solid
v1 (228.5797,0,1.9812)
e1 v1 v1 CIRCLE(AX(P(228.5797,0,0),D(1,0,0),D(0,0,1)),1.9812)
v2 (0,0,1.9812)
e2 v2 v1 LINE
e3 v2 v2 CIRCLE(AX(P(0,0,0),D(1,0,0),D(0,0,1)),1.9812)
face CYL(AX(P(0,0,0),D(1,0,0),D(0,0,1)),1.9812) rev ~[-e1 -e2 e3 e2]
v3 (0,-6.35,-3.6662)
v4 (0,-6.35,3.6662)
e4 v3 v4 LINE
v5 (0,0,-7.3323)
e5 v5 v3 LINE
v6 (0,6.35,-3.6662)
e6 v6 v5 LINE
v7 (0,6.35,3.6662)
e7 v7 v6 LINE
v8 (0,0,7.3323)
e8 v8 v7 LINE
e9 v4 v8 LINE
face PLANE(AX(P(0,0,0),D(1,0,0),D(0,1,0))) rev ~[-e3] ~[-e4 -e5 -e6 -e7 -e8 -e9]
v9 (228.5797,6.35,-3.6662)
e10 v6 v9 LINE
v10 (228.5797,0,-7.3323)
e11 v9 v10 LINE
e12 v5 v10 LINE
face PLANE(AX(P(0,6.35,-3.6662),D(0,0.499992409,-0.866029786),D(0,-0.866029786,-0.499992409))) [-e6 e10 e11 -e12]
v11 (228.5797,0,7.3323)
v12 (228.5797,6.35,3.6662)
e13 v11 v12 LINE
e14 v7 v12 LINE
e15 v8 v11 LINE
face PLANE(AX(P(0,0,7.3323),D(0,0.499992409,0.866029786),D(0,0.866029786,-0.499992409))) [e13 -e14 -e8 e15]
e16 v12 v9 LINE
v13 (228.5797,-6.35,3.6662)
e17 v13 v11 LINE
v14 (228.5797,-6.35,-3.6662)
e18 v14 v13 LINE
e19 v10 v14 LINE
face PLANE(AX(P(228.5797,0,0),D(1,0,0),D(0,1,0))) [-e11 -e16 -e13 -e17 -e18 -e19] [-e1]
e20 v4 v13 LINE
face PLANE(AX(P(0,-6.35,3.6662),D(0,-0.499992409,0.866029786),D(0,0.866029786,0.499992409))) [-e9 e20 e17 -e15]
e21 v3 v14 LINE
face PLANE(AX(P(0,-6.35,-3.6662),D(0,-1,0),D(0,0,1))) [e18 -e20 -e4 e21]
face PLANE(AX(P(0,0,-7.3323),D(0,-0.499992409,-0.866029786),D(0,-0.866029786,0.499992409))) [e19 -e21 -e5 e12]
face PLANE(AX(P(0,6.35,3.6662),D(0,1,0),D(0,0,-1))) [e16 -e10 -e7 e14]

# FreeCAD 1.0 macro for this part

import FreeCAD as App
import Part
import Sketcher
from FreeCAD import Vector
Q = App.Units.Quantity


def add_polygon(sketch, points):
    """Adds a closed chain of lines whose ends are joined by coincident constraints."""
    first, n = sketch.GeometryCount, len(points)
    for a, b in zip(points, points[1:] + points[:1]):
        sketch.addGeometry(Part.LineSegment(App.Vector(*a, 0), App.Vector(*b, 0)), False)
    for i in range(n):
        sketch.addConstraint(Sketcher.Constraint("Coincident", first + i, 2, first + (i + 1) % n, 1))

doc = App.newDocument("Part")
body = doc.addObject("PartDesign::Body", "Body")

# Sketch on YZ plane
sketch1 = body.newObject("Sketcher::SketchObject", "Sketch")
sketch1.AttachmentSupport = (doc.getObject("YZ_Plane"), [""])
sketch1.MapMode = "FlatFace"
add_polygon(sketch1, [(-6, 4), (-6, -4), (0, -7), (6, -4), (6, 4), (0, 7)])  # lines 0-5
sketch1.addConstraint(Sketcher.Constraint("Vertical", 0))
sketch1.addConstraint(Sketcher.Constraint("Vertical", 3))
sketch1.addConstraint(Sketcher.Constraint("Symmetric", 0, 2, 3, 2, -1, 1))
sketch1.addConstraint(Sketcher.Constraint("Symmetric", 1, 2, 4, 2, -1, 1))
sketch1.addConstraint(Sketcher.Constraint("PointOnObject", 1, 2, -2))
sketch1.addConstraint(Sketcher.Constraint("Parallel", 2, 5))
sketch1.addConstraint(Sketcher.Constraint("Horizontal", 0, 2, 2, 2))
sketch1.addConstraint(Sketcher.Constraint("DistanceX", 0, 2, 2, 2, Q("0.5 in")))
sketch1.addConstraint(Sketcher.Constraint("Angle", 1, Q("-29.9995 deg")))
sketch1.addConstraint(Sketcher.Constraint("DistanceY", 1, 2, 3, 2, Q("0.433 in")))
pad1 = body.newObject("PartDesign::Pad", "Pad")
pad1.Profile = sketch1
pad1.Length = Q("8.9992008 in")

# Sketch on YZ plane
sketch2 = body.newObject("Sketcher::SketchObject", "Sketch001")
sketch2.AttachmentSupport = (doc.getObject("YZ_Plane"), [""])
sketch2.MapMode = "FlatFace"
sketch2.addGeometry(Part.Circle(Vector(0, 0, 0), Vector(0, 0, 1), 2), False)
sketch2.addConstraint(Sketcher.Constraint("Coincident", 0, 3, -1, 1))
sketch2.addConstraint(Sketcher.Constraint("Diameter", 0, Q("0.156 in")))
doc.recompute()
hole = body.newObject("PartDesign::Hole", "Hole")
hole.Profile = sketch2
hole.ThreadType = "None"
hole.Diameter = Q("0.156 in")
hole.DepthType = "ThroughAll"
hole.Reversed = True

doc.recompute()
